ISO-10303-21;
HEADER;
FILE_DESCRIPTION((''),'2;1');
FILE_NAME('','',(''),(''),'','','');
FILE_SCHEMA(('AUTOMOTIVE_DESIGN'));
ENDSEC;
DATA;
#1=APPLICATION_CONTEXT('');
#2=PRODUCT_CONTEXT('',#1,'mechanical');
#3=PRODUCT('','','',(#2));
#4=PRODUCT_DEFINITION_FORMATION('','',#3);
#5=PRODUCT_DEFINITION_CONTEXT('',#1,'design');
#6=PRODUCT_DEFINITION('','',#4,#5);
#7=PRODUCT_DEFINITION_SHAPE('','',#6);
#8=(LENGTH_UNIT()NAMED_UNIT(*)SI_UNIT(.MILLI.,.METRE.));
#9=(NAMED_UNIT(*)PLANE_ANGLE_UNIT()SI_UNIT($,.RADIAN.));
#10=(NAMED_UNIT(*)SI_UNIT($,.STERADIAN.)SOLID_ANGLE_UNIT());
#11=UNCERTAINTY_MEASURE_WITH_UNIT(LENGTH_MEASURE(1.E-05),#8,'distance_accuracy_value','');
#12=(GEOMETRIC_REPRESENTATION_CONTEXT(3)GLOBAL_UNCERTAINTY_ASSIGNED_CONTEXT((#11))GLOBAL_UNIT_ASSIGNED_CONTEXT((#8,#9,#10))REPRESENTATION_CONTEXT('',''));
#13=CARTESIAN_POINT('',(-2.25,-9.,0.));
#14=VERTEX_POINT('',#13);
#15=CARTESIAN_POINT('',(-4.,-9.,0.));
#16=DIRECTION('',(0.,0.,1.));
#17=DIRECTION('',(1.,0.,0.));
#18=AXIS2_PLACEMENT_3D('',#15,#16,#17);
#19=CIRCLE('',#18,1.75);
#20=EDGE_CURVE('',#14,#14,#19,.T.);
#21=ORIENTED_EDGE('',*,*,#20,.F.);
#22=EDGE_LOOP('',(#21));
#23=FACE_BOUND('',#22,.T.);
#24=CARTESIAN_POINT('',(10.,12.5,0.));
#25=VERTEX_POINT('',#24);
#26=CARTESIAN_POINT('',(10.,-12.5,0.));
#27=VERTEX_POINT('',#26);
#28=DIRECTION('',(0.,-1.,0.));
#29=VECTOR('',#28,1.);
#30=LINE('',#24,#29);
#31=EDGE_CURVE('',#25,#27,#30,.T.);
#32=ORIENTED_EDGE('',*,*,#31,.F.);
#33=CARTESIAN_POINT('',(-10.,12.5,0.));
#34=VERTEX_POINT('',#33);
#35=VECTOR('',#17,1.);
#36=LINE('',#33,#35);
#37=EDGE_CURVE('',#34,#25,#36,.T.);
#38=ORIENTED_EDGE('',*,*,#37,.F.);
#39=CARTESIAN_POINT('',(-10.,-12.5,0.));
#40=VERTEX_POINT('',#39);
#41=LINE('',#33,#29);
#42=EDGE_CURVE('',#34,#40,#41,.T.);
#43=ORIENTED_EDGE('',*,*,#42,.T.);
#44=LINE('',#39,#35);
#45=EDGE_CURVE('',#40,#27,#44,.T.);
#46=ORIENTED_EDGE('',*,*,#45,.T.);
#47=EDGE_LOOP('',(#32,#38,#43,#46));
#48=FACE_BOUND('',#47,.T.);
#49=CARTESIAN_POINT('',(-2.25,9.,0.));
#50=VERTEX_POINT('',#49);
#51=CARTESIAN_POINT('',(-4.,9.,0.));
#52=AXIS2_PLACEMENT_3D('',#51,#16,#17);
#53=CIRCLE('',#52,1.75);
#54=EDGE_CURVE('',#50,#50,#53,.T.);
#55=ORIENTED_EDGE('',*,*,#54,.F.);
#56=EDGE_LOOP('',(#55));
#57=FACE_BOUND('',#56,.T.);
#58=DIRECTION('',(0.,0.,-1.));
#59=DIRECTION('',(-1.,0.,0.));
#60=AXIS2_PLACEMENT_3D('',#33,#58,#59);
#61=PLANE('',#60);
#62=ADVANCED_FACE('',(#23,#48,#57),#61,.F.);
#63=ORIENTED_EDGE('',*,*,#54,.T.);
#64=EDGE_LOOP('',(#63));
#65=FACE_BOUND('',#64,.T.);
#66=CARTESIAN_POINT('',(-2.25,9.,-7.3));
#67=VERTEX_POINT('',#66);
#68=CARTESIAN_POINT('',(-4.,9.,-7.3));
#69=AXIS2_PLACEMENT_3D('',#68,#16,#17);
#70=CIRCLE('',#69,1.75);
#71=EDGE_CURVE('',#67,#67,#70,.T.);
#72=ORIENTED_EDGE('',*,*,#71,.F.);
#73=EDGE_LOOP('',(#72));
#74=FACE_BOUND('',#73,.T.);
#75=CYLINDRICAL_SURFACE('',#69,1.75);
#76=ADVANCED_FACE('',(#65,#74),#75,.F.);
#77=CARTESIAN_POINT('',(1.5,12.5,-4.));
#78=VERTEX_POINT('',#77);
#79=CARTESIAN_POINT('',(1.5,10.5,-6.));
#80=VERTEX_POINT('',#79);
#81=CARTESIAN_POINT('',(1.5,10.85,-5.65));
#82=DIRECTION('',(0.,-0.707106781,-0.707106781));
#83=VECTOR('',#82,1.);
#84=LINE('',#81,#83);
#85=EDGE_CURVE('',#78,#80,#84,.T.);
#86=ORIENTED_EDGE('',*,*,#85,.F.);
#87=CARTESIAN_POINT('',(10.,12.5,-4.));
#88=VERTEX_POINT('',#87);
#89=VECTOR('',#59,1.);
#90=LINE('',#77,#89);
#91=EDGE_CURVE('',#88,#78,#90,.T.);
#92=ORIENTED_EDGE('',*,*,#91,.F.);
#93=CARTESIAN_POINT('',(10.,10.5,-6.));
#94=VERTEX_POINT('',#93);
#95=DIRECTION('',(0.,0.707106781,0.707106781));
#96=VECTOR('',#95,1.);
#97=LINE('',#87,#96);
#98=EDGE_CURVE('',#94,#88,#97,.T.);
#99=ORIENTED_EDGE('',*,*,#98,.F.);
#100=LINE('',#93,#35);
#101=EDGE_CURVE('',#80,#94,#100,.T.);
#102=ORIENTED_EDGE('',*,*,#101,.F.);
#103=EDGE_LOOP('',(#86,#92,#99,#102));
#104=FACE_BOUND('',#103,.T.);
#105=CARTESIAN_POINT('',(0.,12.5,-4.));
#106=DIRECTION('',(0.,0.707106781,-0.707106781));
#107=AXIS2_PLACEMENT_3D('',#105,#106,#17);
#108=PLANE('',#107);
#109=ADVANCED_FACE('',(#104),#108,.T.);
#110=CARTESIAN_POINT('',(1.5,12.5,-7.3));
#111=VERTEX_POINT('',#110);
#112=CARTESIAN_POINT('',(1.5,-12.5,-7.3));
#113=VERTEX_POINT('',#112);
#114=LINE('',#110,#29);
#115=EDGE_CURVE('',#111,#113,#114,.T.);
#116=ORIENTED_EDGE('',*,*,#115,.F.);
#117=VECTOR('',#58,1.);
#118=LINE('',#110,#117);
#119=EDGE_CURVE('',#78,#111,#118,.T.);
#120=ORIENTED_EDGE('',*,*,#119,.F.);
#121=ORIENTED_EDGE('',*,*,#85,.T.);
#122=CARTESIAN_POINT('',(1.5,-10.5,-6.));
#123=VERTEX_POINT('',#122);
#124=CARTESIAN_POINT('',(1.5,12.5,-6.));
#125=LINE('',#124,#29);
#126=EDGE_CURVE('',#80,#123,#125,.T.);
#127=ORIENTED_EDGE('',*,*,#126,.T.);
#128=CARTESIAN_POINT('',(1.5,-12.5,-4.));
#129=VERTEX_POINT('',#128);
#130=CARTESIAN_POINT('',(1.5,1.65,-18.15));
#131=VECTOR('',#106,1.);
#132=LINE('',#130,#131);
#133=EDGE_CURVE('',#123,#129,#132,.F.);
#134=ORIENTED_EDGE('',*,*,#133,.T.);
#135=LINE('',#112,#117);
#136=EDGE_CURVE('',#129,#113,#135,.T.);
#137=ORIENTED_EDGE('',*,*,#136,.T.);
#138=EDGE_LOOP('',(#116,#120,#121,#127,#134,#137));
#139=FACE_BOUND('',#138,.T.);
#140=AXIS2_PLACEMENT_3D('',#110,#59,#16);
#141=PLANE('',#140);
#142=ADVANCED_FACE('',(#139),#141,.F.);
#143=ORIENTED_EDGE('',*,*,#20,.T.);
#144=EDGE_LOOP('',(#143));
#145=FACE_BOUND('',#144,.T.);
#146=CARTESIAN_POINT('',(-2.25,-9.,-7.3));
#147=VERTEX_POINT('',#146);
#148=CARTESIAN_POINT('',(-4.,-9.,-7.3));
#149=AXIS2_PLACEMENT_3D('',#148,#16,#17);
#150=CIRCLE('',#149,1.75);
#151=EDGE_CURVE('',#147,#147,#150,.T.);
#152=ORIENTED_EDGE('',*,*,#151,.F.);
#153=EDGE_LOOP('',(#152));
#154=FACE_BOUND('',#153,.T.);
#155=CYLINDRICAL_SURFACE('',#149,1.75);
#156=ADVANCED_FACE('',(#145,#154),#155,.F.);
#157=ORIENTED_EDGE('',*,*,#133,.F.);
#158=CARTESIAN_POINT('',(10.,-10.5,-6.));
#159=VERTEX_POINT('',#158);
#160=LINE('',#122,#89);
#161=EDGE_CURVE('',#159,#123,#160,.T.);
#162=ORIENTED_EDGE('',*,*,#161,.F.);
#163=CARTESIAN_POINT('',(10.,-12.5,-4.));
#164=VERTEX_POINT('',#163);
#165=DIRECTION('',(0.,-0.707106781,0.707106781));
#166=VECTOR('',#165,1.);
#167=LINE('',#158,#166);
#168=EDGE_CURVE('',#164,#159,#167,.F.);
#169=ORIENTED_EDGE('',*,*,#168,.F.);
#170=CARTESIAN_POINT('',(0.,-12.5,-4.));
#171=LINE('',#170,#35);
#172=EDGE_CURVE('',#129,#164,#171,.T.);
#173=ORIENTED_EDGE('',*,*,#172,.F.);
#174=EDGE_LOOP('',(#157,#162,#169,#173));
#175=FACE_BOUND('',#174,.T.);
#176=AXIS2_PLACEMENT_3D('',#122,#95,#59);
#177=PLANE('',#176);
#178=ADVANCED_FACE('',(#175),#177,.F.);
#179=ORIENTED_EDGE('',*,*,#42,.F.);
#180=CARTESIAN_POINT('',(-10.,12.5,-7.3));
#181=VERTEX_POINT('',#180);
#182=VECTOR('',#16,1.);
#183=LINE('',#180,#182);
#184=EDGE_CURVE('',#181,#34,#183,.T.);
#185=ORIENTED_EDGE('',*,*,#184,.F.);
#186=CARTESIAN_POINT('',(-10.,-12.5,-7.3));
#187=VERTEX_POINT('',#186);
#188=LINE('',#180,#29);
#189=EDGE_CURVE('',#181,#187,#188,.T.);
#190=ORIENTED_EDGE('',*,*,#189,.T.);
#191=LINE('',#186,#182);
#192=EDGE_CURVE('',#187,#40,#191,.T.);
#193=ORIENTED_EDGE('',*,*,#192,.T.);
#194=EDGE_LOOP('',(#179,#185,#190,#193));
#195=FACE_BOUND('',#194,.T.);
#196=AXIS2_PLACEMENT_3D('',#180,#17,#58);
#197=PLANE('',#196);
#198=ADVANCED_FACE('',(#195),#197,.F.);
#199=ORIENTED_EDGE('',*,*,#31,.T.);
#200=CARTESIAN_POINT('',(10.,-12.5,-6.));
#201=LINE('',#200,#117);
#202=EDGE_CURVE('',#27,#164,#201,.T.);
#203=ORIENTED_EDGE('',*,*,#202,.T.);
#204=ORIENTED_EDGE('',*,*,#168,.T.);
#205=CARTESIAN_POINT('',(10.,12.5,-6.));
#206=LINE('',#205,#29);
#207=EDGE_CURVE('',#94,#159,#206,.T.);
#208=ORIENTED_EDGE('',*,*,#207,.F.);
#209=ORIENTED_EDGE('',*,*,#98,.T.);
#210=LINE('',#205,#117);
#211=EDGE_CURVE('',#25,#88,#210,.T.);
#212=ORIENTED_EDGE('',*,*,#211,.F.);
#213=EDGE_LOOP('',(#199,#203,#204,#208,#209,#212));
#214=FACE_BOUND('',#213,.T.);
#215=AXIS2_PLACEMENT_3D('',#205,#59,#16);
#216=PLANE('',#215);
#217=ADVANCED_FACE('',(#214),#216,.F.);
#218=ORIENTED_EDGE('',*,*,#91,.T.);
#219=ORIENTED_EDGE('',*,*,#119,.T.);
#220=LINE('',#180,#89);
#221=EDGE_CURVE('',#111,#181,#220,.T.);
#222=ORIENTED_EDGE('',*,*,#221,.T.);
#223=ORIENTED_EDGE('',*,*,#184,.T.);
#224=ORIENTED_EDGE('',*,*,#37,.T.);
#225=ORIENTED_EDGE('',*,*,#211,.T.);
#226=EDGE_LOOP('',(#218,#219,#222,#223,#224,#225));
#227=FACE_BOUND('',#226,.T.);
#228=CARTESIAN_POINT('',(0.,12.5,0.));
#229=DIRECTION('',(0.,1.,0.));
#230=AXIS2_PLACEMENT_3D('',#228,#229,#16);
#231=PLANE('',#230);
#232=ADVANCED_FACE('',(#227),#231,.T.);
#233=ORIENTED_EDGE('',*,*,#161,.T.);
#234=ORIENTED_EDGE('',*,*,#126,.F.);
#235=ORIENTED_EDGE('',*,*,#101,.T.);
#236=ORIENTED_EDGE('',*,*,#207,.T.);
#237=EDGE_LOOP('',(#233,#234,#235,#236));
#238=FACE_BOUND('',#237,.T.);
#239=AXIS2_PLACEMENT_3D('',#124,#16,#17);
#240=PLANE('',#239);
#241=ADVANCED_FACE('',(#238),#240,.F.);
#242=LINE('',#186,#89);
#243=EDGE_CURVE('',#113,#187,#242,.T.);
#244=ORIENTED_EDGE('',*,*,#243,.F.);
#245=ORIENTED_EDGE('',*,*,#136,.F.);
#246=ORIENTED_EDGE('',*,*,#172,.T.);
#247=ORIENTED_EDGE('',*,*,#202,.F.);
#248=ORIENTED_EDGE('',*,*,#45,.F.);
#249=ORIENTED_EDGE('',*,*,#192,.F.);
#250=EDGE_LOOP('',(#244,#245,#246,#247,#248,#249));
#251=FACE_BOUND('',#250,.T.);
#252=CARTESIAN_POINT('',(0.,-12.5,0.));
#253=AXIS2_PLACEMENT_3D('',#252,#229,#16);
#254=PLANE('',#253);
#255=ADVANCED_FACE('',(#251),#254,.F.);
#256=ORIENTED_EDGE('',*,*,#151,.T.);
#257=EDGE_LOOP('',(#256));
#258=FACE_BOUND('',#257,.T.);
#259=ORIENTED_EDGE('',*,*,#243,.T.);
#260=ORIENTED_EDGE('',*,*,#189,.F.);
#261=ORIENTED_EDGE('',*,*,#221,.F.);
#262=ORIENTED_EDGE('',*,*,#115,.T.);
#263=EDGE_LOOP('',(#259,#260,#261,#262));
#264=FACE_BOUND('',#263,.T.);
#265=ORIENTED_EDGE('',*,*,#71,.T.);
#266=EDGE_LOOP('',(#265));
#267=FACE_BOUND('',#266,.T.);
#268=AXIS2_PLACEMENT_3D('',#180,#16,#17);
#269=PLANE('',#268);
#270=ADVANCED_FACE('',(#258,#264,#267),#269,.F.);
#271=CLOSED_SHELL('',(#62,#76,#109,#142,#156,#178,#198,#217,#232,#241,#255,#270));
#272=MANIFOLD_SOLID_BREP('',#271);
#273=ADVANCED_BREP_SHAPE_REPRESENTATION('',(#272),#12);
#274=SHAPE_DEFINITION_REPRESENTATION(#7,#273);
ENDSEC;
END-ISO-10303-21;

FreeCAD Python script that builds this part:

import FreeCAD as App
import Part
import Sketcher


def edges_at(feature, points):
    """Names of the edges that pass closest to the given points."""
    edges = feature.Shape.Edges
    near = lambda p: min(range(len(edges)), key=lambda i: edges[i].distToShape(Part.Vertex(*p))[0])
    return sorted({f"Edge{near(p) + 1}" for p in points})

doc = App.newDocument("Part")
body = doc.addObject("PartDesign::Body", "Body")

# Sketch on XZ plane
sketch1 = body.newObject("Sketcher::SketchObject", "Sketch")
sketch1.AttachmentSupport = (doc.getObject("XZ_Plane"), [""])
sketch1.MapMode = "FlatFace"
sketch1.addGeometry(Part.LineSegment(App.Vector(1.5, -7.3, 0), App.Vector(-10, -7.3, 0)), False)
sketch1.addGeometry(Part.LineSegment(App.Vector(-10, -7.3, 0), App.Vector(-10, 0, 0)), False)
sketch1.addGeometry(Part.LineSegment(App.Vector(-10, 0, 0), App.Vector(10, 0, 0)), False)
sketch1.addGeometry(Part.LineSegment(App.Vector(10, 0, 0), App.Vector(10, -6, 0)), False)
sketch1.addGeometry(Part.LineSegment(App.Vector(10, -6, 0), App.Vector(1.5, -6, 0)), False)
sketch1.addGeometry(Part.LineSegment(App.Vector(1.5, -6, 0), App.Vector(1.5, -7.3, 0)), False)
sketch1.addConstraint(Sketcher.Constraint("Coincident", 0, 2, 1, 1))
sketch1.addConstraint(Sketcher.Constraint("Coincident", 1, 2, 2, 1))
sketch1.addConstraint(Sketcher.Constraint("Coincident", 2, 2, 3, 1))
sketch1.addConstraint(Sketcher.Constraint("Coincident", 3, 2, 4, 1))
sketch1.addConstraint(Sketcher.Constraint("Coincident", 4, 2, 5, 1))
sketch1.addConstraint(Sketcher.Constraint("Coincident", 5, 2, 0, 1))
sketch1.addConstraint(Sketcher.Constraint("Horizontal", 0))
sketch1.addConstraint(Sketcher.Constraint("Vertical", 1))
sketch1.addConstraint(Sketcher.Constraint("Horizontal", 2))
sketch1.addConstraint(Sketcher.Constraint("Vertical", 3))
sketch1.addConstraint(Sketcher.Constraint("Horizontal", 4))
sketch1.addConstraint(Sketcher.Constraint("Vertical", 5))
sketch1.addConstraint(Sketcher.Constraint("Symmetric", 1, 2, 2, 2, -1, 1))
sketch1.addConstraint(Sketcher.Constraint("DistanceX", 2, 1, 2, 2, 20.0))
sketch1.addConstraint(Sketcher.Constraint("DistanceY", 3, 2, 3, 1, 6.0))
sketch1.addConstraint(Sketcher.Constraint("DistanceX", 0, 2, 0, 1, 11.5))
sketch1.addConstraint(Sketcher.Constraint("DistanceY", 1, 1, 1, 2, 7.3))
pad1 = body.newObject("PartDesign::Pad", "Pad")
pad1.Profile = sketch1
pad1.Length = 25
pad1.Midplane = True

# Sketch on XY plane
sketch2 = body.newObject("Sketcher::SketchObject", "Sketch001")
sketch2.AttachmentSupport = (doc.getObject("XY_Plane"), [""])
sketch2.MapMode = "FlatFace"
sketch2.addGeometry(Part.Circle(App.Vector(-4, 9, 0), App.Vector(0, 0, 1), 1.8), False)
sketch2.addGeometry(Part.Circle(App.Vector(-4, -9, 0), App.Vector(0, 0, 1), 1.8), False)
sketch2.addConstraint(Sketcher.Constraint("Equal", 0, 1))
sketch2.addConstraint(Sketcher.Constraint("Symmetric", 0, 3, 1, 3, -1))
sketch2.addConstraint(Sketcher.Constraint("Diameter", 0, 3.5))
sketch2.addConstraint(Sketcher.Constraint("DistanceX", 0, 3, -1, 1, 4.0))
sketch2.addConstraint(Sketcher.Constraint("DistanceY", -1, 1, 0, 3, 9.0))
pocket1 = body.newObject("PartDesign::Pocket", "Pocket")
pocket1.Profile = sketch2
pocket1.Type = "ThroughAll"
doc.recompute()

chamfer = body.newObject("PartDesign::Chamfer", "Chamfer")
chamfer.Base = (pocket1, edges_at(pocket1, [(5.75, 12.5, -6), (5.75, -12.5, -6)]))
chamfer.Size = 2

doc.recompute()
